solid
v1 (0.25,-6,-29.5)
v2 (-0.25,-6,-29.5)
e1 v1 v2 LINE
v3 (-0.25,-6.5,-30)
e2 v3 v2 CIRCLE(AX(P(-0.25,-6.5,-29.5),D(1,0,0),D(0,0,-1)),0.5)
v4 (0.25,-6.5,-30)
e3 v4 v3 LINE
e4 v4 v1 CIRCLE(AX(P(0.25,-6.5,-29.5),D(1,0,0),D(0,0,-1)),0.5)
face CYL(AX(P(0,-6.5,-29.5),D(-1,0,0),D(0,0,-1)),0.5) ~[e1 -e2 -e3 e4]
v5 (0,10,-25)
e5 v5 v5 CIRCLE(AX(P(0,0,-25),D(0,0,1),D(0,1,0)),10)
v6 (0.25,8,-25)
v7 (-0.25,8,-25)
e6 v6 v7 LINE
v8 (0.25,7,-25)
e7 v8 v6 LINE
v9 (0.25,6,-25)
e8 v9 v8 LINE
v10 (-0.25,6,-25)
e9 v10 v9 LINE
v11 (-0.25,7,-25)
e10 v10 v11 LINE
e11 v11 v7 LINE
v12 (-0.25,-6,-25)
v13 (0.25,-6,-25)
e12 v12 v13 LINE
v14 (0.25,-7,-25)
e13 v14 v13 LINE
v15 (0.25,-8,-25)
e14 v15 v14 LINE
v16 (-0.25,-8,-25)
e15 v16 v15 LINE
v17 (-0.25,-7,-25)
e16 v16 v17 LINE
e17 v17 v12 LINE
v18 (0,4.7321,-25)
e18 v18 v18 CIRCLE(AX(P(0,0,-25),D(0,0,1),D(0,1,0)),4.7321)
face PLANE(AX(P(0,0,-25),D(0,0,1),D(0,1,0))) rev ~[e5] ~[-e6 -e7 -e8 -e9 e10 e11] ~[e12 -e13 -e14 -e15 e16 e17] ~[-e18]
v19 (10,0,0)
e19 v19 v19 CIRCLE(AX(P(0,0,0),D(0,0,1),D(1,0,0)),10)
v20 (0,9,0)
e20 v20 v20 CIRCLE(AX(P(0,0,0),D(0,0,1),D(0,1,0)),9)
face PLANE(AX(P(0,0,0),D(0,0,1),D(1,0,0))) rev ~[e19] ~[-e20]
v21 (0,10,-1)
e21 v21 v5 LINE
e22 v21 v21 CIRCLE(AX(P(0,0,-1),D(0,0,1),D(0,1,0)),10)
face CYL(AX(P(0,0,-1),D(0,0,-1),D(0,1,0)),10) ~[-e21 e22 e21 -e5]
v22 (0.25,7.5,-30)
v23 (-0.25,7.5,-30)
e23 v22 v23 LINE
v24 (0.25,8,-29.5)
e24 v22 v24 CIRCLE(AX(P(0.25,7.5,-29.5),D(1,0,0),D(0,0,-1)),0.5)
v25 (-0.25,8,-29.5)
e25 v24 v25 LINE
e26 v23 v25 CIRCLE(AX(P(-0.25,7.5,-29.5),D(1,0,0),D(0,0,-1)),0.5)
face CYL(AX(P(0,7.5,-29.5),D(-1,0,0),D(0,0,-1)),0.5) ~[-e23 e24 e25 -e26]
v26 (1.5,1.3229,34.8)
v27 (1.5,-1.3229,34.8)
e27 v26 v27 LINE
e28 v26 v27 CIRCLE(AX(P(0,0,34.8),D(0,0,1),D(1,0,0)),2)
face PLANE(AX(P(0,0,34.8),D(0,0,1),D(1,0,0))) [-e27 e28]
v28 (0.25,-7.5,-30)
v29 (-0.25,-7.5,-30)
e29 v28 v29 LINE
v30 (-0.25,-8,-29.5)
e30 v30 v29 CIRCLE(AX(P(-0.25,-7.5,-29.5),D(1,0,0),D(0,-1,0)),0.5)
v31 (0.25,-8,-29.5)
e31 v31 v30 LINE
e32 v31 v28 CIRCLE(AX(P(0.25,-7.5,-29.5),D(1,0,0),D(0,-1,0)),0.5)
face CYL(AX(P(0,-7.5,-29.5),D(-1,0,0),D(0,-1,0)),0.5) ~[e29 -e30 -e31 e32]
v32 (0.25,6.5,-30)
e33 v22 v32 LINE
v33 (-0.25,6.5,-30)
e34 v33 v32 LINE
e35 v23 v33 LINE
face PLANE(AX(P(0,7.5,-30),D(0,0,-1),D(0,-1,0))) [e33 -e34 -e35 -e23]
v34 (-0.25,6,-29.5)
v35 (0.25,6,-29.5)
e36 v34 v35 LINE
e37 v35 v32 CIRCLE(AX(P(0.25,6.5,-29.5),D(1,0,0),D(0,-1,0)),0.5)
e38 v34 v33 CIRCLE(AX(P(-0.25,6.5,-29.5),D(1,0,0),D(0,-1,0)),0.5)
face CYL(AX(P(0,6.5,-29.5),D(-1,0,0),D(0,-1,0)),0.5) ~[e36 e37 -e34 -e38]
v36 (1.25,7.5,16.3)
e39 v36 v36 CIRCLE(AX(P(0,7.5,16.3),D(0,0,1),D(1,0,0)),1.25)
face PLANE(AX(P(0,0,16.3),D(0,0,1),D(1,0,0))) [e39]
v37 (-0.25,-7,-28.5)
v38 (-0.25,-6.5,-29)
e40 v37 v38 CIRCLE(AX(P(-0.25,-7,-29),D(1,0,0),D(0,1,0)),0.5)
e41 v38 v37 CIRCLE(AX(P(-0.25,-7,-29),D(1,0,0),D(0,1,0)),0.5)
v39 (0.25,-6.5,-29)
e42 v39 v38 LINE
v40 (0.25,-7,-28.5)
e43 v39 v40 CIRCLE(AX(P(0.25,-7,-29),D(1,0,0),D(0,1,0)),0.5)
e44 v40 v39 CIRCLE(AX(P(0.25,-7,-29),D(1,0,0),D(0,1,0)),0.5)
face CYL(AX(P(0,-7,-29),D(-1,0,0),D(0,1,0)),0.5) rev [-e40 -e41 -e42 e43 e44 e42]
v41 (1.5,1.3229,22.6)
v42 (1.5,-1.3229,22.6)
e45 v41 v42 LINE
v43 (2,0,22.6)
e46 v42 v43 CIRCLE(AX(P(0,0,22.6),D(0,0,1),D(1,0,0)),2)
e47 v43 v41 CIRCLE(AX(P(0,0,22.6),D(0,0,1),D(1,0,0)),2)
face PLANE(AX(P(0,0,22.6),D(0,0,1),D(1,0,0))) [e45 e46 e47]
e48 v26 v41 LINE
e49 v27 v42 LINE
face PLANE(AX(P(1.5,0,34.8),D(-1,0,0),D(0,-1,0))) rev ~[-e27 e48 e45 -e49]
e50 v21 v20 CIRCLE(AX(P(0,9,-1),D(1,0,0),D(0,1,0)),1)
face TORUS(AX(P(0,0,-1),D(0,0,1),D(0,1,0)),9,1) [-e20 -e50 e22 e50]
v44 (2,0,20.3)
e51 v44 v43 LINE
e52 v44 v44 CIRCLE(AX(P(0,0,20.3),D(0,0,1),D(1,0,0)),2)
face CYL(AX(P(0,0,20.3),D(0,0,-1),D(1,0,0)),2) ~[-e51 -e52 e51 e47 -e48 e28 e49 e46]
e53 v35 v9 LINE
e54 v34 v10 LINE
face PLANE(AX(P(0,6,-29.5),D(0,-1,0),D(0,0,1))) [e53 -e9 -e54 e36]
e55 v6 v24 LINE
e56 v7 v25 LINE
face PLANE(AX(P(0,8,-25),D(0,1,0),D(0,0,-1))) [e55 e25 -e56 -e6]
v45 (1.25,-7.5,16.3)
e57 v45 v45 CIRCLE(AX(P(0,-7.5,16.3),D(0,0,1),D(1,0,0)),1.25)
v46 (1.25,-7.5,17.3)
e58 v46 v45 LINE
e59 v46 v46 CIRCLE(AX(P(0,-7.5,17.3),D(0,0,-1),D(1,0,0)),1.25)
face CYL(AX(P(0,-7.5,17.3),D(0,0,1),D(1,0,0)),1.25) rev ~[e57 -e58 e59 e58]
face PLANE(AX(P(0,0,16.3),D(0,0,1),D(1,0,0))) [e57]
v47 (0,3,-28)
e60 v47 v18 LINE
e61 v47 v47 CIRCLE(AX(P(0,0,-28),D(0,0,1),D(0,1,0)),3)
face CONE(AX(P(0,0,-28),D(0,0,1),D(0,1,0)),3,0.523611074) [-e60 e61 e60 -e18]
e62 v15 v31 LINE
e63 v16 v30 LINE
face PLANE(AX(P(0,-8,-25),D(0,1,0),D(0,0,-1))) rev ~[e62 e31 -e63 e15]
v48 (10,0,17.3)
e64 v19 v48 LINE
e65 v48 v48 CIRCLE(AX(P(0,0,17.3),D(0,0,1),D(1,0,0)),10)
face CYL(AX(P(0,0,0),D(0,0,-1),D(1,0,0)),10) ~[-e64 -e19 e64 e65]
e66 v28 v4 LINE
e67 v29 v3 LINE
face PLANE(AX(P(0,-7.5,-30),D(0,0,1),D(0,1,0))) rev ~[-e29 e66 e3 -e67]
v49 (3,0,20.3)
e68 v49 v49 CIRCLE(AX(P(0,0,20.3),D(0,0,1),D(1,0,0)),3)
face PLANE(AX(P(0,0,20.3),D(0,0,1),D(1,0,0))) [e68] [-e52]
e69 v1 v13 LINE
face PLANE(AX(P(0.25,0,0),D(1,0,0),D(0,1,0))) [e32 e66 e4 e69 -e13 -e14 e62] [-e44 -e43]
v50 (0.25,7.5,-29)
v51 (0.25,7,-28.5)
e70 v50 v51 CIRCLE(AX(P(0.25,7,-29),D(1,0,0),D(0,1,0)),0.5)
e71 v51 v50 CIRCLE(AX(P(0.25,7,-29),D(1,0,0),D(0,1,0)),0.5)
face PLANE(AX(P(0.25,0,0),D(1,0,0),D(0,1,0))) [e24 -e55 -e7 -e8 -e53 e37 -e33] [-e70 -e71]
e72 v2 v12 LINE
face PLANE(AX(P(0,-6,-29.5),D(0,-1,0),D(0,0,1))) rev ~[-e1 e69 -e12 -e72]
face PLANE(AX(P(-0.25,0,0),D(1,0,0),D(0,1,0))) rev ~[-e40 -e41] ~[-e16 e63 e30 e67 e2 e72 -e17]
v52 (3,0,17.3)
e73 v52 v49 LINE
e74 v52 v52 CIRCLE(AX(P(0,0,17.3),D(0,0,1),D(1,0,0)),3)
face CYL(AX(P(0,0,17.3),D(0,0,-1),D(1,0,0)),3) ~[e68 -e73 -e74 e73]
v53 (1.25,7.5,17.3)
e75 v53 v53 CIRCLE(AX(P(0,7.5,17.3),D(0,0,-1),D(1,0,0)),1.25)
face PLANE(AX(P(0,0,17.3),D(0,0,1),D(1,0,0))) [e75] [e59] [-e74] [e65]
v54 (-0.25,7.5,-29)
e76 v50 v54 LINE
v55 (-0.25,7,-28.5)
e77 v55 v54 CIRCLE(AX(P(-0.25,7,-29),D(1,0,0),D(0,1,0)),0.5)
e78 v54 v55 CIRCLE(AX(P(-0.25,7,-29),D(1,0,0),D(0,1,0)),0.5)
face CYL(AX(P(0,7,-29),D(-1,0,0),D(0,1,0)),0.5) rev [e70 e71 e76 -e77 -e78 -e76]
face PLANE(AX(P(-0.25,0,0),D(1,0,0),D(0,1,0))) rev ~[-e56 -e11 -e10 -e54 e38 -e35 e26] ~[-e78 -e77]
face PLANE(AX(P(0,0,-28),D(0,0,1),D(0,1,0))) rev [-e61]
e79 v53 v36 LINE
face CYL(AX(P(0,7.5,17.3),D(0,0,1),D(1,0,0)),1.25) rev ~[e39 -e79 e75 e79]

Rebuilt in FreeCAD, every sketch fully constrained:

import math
import FreeCAD as App
import Part
import Sketcher
from FreeCAD import Vector
Q = App.Units.Quantity

doc = App.newDocument("Part")
body = doc.addObject("PartDesign::Body", "Body")

# Sketch on XY plane
sketch1 = doc.addObject("Sketcher::SketchObject", "Sketch")
body.addObject(sketch1)
sketch1.AttachmentSupport = (doc.XY_Plane, [""])
sketch1.MapMode = "FlatFace"
sketch1.addGeometry(Part.Circle(Vector(0, 0, 0), Vector(0, 0, 1), 10), False)
sketch1.addConstraint([
    Sketcher.Constraint("Coincident", 0, 3, -1, 1),
    Sketcher.Constraint("Diameter", 0, 20.0),
])
pad1 = doc.addObject("PartDesign::Pad", "Pad")
body.addObject(pad1)
pad1.Profile = sketch1
pad1.Length = 17.3

# Sketch on XY plane
sketch2 = doc.addObject("Sketcher::SketchObject", "Sketch001")
body.addObject(sketch2)
sketch2.AttachmentSupport = (doc.XY_Plane, [""])
sketch2.MapMode = "FlatFace"
sketch2.AttachmentOffset = App.Placement(Vector(0, 0, 17.3), App.Rotation())
sketch2.addGeometry([
    Part.Circle(Vector(0, 7.5, 0), Vector(0, 0, 1), 1.25),
    Part.Circle(Vector(0, -7.5, 0), Vector(0, 0, 1), 1.25),
], False)
sketch2.addConstraint([
    Sketcher.Constraint("Equal", 0, 1),
    Sketcher.Constraint("Symmetric", 0, 3, 1, 3, -1, 1),
    Sketcher.Constraint("PointOnObject", 0, 3, -2),
    Sketcher.Constraint("Diameter", 0, 2.5),
    Sketcher.Constraint("DistanceY", -1, 1, 0, 3, 7.5),
])
pocket1 = doc.addObject("PartDesign::Pocket", "Pocket")
body.addObject(pocket1)
pocket1.Profile = sketch2
pocket1.Length = 1

# Sketch on XY plane
sketch3 = doc.addObject("Sketcher::SketchObject", "Sketch002")
body.addObject(sketch3)
sketch3.AttachmentSupport = (doc.XY_Plane, [""])
sketch3.MapMode = "FlatFace"
sketch3.AttachmentOffset = App.Placement(Vector(0, 0, 17.3), App.Rotation())
sketch3.addGeometry(Part.Circle(Vector(0, 0, 0), Vector(0, 0, 1), 3), False)
sketch3.addConstraint([
    Sketcher.Constraint("Coincident", 0, 3, -1, 1),
    Sketcher.Constraint("Diameter", 0, 6.0),
])
pad2 = doc.addObject("PartDesign::Pad", "Pad001")
body.addObject(pad2)
pad2.Profile = sketch3
pad2.Length = 3

# Sketch on XY plane
sketch4 = doc.addObject("Sketcher::SketchObject", "Sketch003")
body.addObject(sketch4)
sketch4.AttachmentSupport = (doc.XY_Plane, [""])
sketch4.MapMode = "FlatFace"
sketch4.AttachmentOffset = App.Placement(Vector(0, 0, 20.3), App.Rotation())
sketch4.addGeometry(Part.Circle(Vector(0, 0, 0), Vector(0, 0, 1), 2), False)
sketch4.addConstraint([
    Sketcher.Constraint("Coincident", 0, 3, -1, 1),
    Sketcher.Constraint("Diameter", 0, 4.0),
])
pad3 = doc.addObject("PartDesign::Pad", "Pad002")
body.addObject(pad3)
pad3.Profile = sketch4
pad3.Length = 14.5

# Sketch on XY plane
sketch5 = doc.addObject("Sketcher::SketchObject", "Sketch004")
body.addObject(sketch5)
sketch5.AttachmentSupport = (doc.XY_Plane, [""])
sketch5.MapMode = "FlatFace"
sketch5.AttachmentOffset = App.Placement(Vector(0, 0, 34.8), App.Rotation())
sketch5.addGeometry([
    Part.LineSegment(Vector(1.5, 1.3229, 0), Vector(1.5, -1.3229, 0)),
    Part.ArcOfCircle(Part.Circle(Vector(0, 0, 0), Vector(0, 0, 1), 2), math.radians(-41.410145), math.radians(41.410145)),
], False)
sketch5.addConstraint([
    Sketcher.Constraint("Coincident", 0, 1, 1, 2),
    Sketcher.Constraint("Coincident", 1, 1, 0, 2),
    Sketcher.Constraint("Vertical", 0),
    Sketcher.Constraint("Coincident", 1, 3, -1, 1),
    Sketcher.Constraint("Radius", 1, 2.0),
    Sketcher.Constraint("DistanceX", -1, 1, 0, 1, 1.5),
])
pocket2 = doc.addObject("PartDesign::Pocket", "Pocket001")
body.addObject(pocket2)
pocket2.Profile = sketch5
pocket2.Length = 12.2

# Sketch on YZ plane
sketch6 = doc.addObject("Sketcher::SketchObject", "Sketch005")
body.addObject(sketch6)
sketch6.AttachmentSupport = (doc.YZ_Plane, [""])
sketch6.MapMode = "FlatFace"
sketch6.addGeometry([
    Part.ArcOfCircle(Part.Circle(Vector(9, -1, 0), Vector(0, 0, 1), 1), math.radians(0), math.radians(90)),  # 0
    Part.LineSegment(Vector(9, 0, 0), Vector(0, 0, 0)),  # 1
    Part.LineSegment(Vector(0, 0, 0), Vector(0, -28, 0)),  # 2
    Part.LineSegment(Vector(0, -28, 0), Vector(3, -28, 0)),  # 3
    Part.LineSegment(Vector(3, -28, 0), Vector(4.7321, -25, 0)),  # 4
    Part.LineSegment(Vector(4.7321, -25, 0), Vector(10, -25, 0)),  # 5
    Part.LineSegment(Vector(10, -25, 0), Vector(10, -1, 0)),  # 6
], False)
sketch6.addConstraint([
    Sketcher.Constraint("Tangent", 0, 2, 1, 1),
    Sketcher.Constraint("Coincident", 1, 2, 2, 1),
    Sketcher.Constraint("Coincident", 2, 2, 3, 1),
    Sketcher.Constraint("Coincident", 3, 2, 4, 1),
    Sketcher.Constraint("Coincident", 4, 2, 5, 1),
    Sketcher.Constraint("Coincident", 5, 2, 6, 1),
    Sketcher.Constraint("Tangent", 6, 2, 0, 1),
    Sketcher.Constraint("Horizontal", 1),
    Sketcher.Constraint("Vertical", 2),
    Sketcher.Constraint("Horizontal", 3),
    Sketcher.Constraint("Horizontal", 5),
    Sketcher.Constraint("Vertical", 6),
    Sketcher.Constraint("Coincident", 1, 2, -1, 1),
    Sketcher.Constraint("Radius", 0, 1.0),
    Sketcher.Constraint("DistanceX", 3, 1, 3, 2, 3.0),
    Sketcher.Constraint("DistanceY", 4, 2, -1, 1, 25.0),
    Sketcher.Constraint("DistanceX", -1, 1, 5, 2, 10.0),
    Sketcher.Constraint("DistanceY", 3, 2, 4, 2, 3.0),
    Sketcher.Constraint("Angle", 4, Q("59.9993 deg")),
])
revolution = doc.addObject("PartDesign::Revolution", "Revolution")
body.addObject(revolution)
revolution.Profile = sketch6
revolution.ReferenceAxis = (sketch6, ["V_Axis"])
revolution.Angle = 360

# Sketch on YZ plane
sketch7 = doc.addObject("Sketcher::SketchObject", "Sketch006")
body.addObject(sketch7)
sketch7.AttachmentSupport = (doc.YZ_Plane, [""])
sketch7.MapMode = "FlatFace"
sketch7.addGeometry([
    Part.LineSegment(Vector(7, -25, 0), Vector(6, -25, 0)),  # 0
    Part.LineSegment(Vector(6, -25, 0), Vector(6, -29.5, 0)),  # 1
    Part.ArcOfCircle(Part.Circle(Vector(6.5, -29.5, 0), Vector(0, 0, 1), 0.5), math.radians(180), math.radians(270)),  # 2
    Part.LineSegment(Vector(6.5, -30, 0), Vector(7.5, -30, 0)),  # 3
    Part.ArcOfCircle(Part.Circle(Vector(7.5, -29.5, 0), Vector(0, 0, 1), 0.5), math.radians(-90), math.radians(0)),  # 4
    Part.LineSegment(Vector(8, -29.5, 0), Vector(8, -25, 0)),  # 5
    Part.LineSegment(Vector(8, -25, 0), Vector(7, -25, 0)),  # 6
    Part.Circle(Vector(7, -29, 0), Vector(0, 0, 1), 0.5),  # 7
    Part.LineSegment(Vector(-6, -29.5, 0), Vector(-6, -25, 0)),  # 8
    Part.LineSegment(Vector(-6, -25, 0), Vector(-7, -25, 0)),  # 9
    Part.LineSegment(Vector(-7, -25, 0), Vector(-8, -25, 0)),  # 10
    Part.LineSegment(Vector(-8, -25, 0), Vector(-8, -29.5, 0)),  # 11
    Part.ArcOfCircle(Part.Circle(Vector(-7.5, -29.5, 0), Vector(0, 0, 1), 0.5), math.radians(180), math.radians(270)),  # 12
    Part.LineSegment(Vector(-7.5, -30, 0), Vector(-6.5, -30, 0)),  # 13
    Part.ArcOfCircle(Part.Circle(Vector(-6.5, -29.5, 0), Vector(0, 0, 1), 0.5), math.radians(-90), math.radians(0)),  # 14
    Part.Circle(Vector(-7, -29, 0), Vector(0, 0, 1), 0.5),  # 15
], False)
sketch7.addConstraint([
    Sketcher.Constraint("Coincident", 0, 2, 1, 1),
    Sketcher.Constraint("Tangent", 1, 2, 2, 1),
    Sketcher.Constraint("Tangent", 2, 2, 3, 1),
    Sketcher.Constraint("Tangent", 3, 2, 4, 1),
    Sketcher.Constraint("Tangent", 4, 2, 5, 1),
    Sketcher.Constraint("Coincident", 5, 2, 6, 1),
    Sketcher.Constraint("Coincident", 6, 2, 0, 1),
    Sketcher.Constraint("Coincident", 8, 2, 9, 1),
    Sketcher.Constraint("Coincident", 9, 2, 10, 1),
    Sketcher.Constraint("Coincident", 10, 2, 11, 1),
    Sketcher.Constraint("Tangent", 11, 2, 12, 1),
    Sketcher.Constraint("Tangent", 12, 2, 13, 1),
    Sketcher.Constraint("Tangent", 13, 2, 14, 1),
    Sketcher.Constraint("Tangent", 14, 2, 8, 1),
    Sketcher.Constraint("Horizontal", 0),
    Sketcher.Constraint("Vertical", 1),
    Sketcher.Constraint("Horizontal", 3),
    Sketcher.Constraint("Vertical", 5),
    Sketcher.Constraint("Horizontal", 6),
    Sketcher.Constraint("Vertical", 8),
    Sketcher.Constraint("Horizontal", 9),
    Sketcher.Constraint("Horizontal", 10),
    Sketcher.Constraint("Vertical", 11),
    Sketcher.Constraint("Horizontal", 13),
    Sketcher.Constraint("Equal", 2, 4),
    Sketcher.Constraint("Equal", 4, 7),
    Sketcher.Constraint("Equal", 7, 12),
    Sketcher.Constraint("Equal", 12, 14),
    Sketcher.Constraint("Equal", 14, 15),
    Sketcher.Constraint("Symmetric", 4, 3, 12, 3, -2),
    Sketcher.Constraint("Symmetric", 7, 3, 15, 3, -2),
    Sketcher.Constraint("Symmetric", 0, 2, 8, 2, -2),
    Sketcher.Constraint("Vertical", 7, 3, 6, 2),
    Sketcher.Constraint("Vertical", 15, 3, 9, 2),
    Sketcher.Constraint("Equal", 0, 3),
    Sketcher.Constraint("Equal", 3, 6),
    Sketcher.Constraint("Diameter", 7, 1.0),
    Sketcher.Constraint("DistanceX", -1, 1, 7, 3, 7.0),
    Sketcher.Constraint("DistanceY", 7, 3, 0, 2, 4.0),
    Sketcher.Constraint("DistanceY", 2, 2, 7, 3, 1.0),
    Sketcher.Constraint("DistanceY", 7, 3, -1, 1, 29.0),
])
pad4 = doc.addObject("PartDesign::Pad", "Pad003")
body.addObject(pad4)
pad4.Profile = sketch7
pad4.Length = 0.5
pad4.Midplane = True

doc.recompute()
